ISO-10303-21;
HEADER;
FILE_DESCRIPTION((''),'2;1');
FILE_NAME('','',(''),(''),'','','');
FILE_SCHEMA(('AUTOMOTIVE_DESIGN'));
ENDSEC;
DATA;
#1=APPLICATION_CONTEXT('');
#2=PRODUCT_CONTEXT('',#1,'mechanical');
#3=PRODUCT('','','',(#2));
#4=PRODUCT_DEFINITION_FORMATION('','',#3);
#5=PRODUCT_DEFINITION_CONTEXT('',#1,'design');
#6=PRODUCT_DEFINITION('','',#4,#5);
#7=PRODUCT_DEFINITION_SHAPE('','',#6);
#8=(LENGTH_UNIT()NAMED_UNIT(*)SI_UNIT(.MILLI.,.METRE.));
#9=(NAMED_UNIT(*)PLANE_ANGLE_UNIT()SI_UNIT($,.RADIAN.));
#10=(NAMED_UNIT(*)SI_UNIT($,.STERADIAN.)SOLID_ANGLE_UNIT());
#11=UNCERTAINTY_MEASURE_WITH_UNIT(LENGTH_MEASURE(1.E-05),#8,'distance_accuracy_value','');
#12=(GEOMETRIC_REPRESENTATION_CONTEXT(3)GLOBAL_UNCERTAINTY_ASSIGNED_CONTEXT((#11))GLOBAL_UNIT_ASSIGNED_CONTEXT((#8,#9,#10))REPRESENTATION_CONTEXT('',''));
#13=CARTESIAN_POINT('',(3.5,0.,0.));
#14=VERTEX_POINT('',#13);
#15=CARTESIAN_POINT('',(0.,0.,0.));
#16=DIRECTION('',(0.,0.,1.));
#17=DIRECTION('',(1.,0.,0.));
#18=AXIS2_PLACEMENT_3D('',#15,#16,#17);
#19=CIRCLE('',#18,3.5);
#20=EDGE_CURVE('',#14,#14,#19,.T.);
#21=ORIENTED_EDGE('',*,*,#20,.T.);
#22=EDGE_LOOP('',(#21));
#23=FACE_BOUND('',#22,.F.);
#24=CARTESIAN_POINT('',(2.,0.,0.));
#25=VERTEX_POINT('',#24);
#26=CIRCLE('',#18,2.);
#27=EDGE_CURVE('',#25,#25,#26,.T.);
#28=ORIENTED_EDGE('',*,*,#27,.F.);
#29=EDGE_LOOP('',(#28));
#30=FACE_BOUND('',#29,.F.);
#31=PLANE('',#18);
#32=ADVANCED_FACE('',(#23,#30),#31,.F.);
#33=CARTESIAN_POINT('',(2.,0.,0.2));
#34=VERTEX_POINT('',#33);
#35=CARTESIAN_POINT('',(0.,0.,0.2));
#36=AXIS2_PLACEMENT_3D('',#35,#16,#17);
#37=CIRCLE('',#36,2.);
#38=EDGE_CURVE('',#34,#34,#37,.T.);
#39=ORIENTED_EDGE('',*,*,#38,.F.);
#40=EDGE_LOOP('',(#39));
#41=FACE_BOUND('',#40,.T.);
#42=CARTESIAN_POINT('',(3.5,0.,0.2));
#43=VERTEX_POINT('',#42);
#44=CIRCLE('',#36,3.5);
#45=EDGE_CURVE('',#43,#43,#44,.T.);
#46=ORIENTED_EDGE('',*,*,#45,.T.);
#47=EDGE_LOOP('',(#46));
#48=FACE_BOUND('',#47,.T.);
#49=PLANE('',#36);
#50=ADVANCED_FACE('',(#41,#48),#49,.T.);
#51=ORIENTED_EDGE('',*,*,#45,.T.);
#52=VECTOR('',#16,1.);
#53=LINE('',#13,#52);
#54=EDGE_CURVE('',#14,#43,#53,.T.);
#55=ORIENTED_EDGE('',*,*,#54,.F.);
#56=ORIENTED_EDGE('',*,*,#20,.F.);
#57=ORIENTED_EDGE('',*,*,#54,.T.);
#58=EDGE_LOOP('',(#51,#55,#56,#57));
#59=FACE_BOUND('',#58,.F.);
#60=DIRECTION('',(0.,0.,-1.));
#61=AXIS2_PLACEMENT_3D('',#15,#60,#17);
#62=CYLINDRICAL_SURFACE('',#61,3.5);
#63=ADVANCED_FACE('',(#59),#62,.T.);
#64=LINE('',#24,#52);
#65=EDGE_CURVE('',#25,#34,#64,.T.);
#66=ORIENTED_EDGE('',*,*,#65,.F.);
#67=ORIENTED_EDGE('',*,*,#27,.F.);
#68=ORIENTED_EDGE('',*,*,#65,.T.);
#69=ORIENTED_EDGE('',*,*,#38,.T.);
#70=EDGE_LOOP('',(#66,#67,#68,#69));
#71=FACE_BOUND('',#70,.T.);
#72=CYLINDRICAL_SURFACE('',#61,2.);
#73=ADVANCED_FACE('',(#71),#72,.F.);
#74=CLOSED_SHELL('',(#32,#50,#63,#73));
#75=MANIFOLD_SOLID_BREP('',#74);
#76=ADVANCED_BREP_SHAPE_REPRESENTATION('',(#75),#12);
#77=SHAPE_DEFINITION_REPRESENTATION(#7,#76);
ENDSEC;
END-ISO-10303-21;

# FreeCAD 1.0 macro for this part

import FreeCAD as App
import Part
import Sketcher
from FreeCAD import Vector

doc = App.newDocument("Part")
body = doc.addObject("PartDesign::Body", "Body")

sketch1 = body.newObject("Sketcher::SketchObject", "Sketch")
sketch1.AttachmentSupport = (doc.getObject("XY_Plane"), [""])
sketch1.MapMode = "FlatFace"
sketch1.addGeometry([
    Part.Circle(Vector(0, 0, 0), Vector(0, 0, 1), 3.5),
    Part.Circle(Vector(0, 0, 0), Vector(0, 0, 1), 2),
], False)
sketch1.addConstraint([
    Sketcher.Constraint("Coincident", 0, 3, -1, 1),
    Sketcher.Constraint("Coincident", 1, 3, -1, 1),
    Sketcher.Constraint("Diameter", 0, 7.0),
    Sketcher.Constraint("Diameter", 1, 4.0),
])
pad1 = body.newObject("PartDesign::Pad", "Pad")
pad1.Profile = sketch1
pad1.Length = 0.2

doc.recompute()
